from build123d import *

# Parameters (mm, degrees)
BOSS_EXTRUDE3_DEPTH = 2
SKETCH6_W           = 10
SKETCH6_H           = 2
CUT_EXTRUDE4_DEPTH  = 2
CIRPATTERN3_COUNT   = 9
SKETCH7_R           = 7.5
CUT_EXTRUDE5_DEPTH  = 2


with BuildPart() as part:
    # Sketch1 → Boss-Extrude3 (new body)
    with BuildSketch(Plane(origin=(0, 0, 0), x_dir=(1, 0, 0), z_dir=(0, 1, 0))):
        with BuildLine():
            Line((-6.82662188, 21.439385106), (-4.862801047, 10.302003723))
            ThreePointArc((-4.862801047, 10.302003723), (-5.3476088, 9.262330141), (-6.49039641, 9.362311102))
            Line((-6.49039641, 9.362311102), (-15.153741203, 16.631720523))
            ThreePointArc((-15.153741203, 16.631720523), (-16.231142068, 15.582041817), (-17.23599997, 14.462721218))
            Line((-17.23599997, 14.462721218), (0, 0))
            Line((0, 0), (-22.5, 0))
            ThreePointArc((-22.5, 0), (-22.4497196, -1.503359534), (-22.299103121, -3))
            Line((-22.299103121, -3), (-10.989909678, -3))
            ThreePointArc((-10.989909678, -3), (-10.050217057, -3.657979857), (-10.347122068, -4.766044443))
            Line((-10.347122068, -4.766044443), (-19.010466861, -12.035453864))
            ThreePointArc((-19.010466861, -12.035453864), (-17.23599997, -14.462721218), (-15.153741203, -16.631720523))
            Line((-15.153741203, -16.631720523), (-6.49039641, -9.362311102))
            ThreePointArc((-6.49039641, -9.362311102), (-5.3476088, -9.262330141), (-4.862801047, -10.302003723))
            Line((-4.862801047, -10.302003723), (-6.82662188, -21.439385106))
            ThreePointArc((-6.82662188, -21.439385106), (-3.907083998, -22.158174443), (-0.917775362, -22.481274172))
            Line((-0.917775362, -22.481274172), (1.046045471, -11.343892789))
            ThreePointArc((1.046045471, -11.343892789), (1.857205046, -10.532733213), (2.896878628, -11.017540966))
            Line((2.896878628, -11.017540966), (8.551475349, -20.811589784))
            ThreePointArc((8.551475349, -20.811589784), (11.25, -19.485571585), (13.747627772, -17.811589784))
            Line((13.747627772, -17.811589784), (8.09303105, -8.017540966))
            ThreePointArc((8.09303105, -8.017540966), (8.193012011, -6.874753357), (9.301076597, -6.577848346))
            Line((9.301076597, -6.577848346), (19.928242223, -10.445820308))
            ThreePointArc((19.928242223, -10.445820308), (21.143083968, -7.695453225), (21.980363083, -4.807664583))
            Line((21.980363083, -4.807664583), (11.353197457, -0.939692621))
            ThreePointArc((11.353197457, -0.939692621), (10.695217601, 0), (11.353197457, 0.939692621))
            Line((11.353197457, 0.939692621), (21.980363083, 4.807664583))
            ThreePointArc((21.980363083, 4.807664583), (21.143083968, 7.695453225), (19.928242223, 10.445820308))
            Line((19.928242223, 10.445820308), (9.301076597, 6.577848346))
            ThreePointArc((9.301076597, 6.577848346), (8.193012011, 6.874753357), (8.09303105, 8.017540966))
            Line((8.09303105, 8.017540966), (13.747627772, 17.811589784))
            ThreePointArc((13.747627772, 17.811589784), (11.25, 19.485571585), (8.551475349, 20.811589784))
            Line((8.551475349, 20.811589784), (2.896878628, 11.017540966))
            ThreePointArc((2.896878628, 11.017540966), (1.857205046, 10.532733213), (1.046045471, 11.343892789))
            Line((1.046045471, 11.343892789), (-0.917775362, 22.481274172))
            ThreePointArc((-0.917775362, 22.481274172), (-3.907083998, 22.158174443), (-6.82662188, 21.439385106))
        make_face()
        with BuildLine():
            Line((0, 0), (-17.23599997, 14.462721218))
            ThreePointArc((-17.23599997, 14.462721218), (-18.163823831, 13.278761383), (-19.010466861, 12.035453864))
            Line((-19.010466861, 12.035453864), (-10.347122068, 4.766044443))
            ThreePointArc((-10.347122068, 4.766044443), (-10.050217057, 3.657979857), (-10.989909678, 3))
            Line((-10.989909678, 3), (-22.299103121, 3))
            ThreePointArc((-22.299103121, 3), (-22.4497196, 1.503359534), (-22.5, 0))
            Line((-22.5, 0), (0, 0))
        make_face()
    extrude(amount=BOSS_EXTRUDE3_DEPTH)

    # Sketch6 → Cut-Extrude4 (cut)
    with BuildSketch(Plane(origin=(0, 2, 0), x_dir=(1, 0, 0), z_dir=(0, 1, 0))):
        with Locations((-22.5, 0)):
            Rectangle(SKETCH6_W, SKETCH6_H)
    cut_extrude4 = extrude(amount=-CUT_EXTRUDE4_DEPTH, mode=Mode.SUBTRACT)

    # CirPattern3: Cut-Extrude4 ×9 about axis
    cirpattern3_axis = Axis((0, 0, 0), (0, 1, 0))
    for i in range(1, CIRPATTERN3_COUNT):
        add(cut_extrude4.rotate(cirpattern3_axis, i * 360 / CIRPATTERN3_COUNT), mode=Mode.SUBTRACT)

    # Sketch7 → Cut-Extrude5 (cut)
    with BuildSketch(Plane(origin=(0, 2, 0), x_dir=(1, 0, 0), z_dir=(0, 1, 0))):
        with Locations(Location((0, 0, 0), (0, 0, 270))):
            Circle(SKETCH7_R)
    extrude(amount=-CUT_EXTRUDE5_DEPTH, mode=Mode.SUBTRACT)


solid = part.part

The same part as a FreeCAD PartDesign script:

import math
import FreeCAD as App
import Part
import Sketcher
from FreeCAD import Vector
Q = App.Units.Quantity


def add_polygon(sketch, points):
    """Adds a closed chain of lines whose ends are joined by coincident constraints."""
    first, n = sketch.GeometryCount, len(points)
    for a, b in zip(points, points[1:] + points[:1]):
        sketch.addGeometry(Part.LineSegment(App.Vector(*a, 0), App.Vector(*b, 0)), False)
    for i in range(n):
        sketch.addConstraint(Sketcher.Constraint("Coincident", first + i, 2, first + (i + 1) % n, 1))

doc = App.newDocument("Part")
body = doc.addObject("PartDesign::Body", "Body")

# Sketch on XZ plane
sketch1 = doc.addObject("Sketcher::SketchObject", "Sketch")
body.addObject(sketch1)
sketch1.AttachmentSupport = (doc.XZ_Plane, [""])
sketch1.MapMode = "FlatFace"
sketch1.addGeometry([
    Part.LineSegment(Vector(-6.826622, -21.439385, 0), Vector(-4.862801, -10.302004, 0)),  # 0
    Part.ArcOfCircle(Part.Circle(Vector(-5.847609, -10.128356, 0), Vector(0, 0, 1), 1), math.radians(-10), math.radians(130)),  # 1
    Part.LineSegment(Vector(-6.490396, -9.362311, 0), Vector(-15.153741, -16.631721, 0)),  # 2
    Part.ArcOfCircle(Part.Circle(Vector(0, 0, 0), Vector(0, 0, 1), 22.5), math.radians(-140), math.radians(-132.337744)),  # 3
    Part.ArcOfCircle(Part.Circle(Vector(0, 0, 0), Vector(0, 0, 1), 22.5), math.radians(-147.662256), math.radians(-140)),  # 4
    Part.LineSegment(Vector(-19.010467, -12.035454, 0), Vector(-10.347122, -4.766044, 0)),  # 5
    Part.ArcOfCircle(Part.Circle(Vector(-10.98991, -4, 0), Vector(0, 0, 1), 1), math.radians(-50), math.radians(90)),  # 6
    Part.LineSegment(Vector(-10.98991, -3, 0), Vector(-22.299103, -3, 0)),  # 7
    Part.ArcOfCircle(Part.Circle(Vector(0, 0, 0), Vector(0, 0, 1), 22.5), math.radians(180), math.radians(187.662256)),  # 8
    Part.ArcOfCircle(Part.Circle(Vector(0, 0, 0), Vector(0, 0, 1), 22.5), math.radians(172.337744), math.radians(180)),  # 9
    Part.LineSegment(Vector(-22.299103, 3, 0), Vector(-10.98991, 3, 0)),  # 10
    Part.ArcOfCircle(Part.Circle(Vector(-10.98991, 4, 0), Vector(0, 0, 1), 1), math.radians(-90), math.radians(50)),  # 11
    Part.LineSegment(Vector(-10.347122, 4.766044, 0), Vector(-19.010467, 12.035454, 0)),  # 12
    Part.ArcOfCircle(Part.Circle(Vector(0, 0, 0), Vector(0, 0, 1), 22.5), math.radians(132.337744), math.radians(147.662256)),  # 13
    Part.LineSegment(Vector(-15.153741, 16.631721, 0), Vector(-6.490396, 9.362311, 0)),  # 14
    Part.ArcOfCircle(Part.Circle(Vector(-5.847609, 10.128356, 0), Vector(0, 0, 1), 1), math.radians(-130), math.radians(10)),  # 15
    Part.LineSegment(Vector(-4.862801, 10.302004, 0), Vector(-6.826622, 21.439385, 0)),  # 16
    Part.ArcOfCircle(Part.Circle(Vector(0, 0, 0), Vector(0, 0, 1), 22.5), math.radians(92.337744), math.radians(107.662256)),  # 17
    Part.LineSegment(Vector(-0.917775, 22.481274, 0), Vector(1.046045, 11.343893, 0)),  # 18
    Part.ArcOfCircle(Part.Circle(Vector(2.030853, 11.517541, 0), Vector(0, 0, 1), 1), math.radians(-170), math.radians(-30)),  # 19
    Part.LineSegment(Vector(2.896879, 11.017541, 0), Vector(8.551475, 20.81159, 0)),  # 20
    Part.ArcOfCircle(Part.Circle(Vector(0, 0, 0), Vector(0, 0, 1), 22.5), math.radians(52.337744), math.radians(67.662256)),  # 21
    Part.LineSegment(Vector(13.747628, 17.81159, 0), Vector(8.093031, 8.017541, 0)),  # 22
    Part.ArcOfCircle(Part.Circle(Vector(8.959056, 7.517541, 0), Vector(0, 0, 1), 1), math.radians(150), math.radians(290)),  # 23
    Part.LineSegment(Vector(9.301077, 6.577848, 0), Vector(19.928242, 10.44582, 0)),  # 24
    Part.ArcOfCircle(Part.Circle(Vector(0, 0, 0), Vector(0, 0, 1), 22.5), math.radians(12.337744), math.radians(27.662256)),  # 25
    Part.LineSegment(Vector(21.980363, 4.807665, 0), Vector(11.353197, 0.939693, 0)),  # 26
    Part.ArcOfCircle(Part.Circle(Vector(11.695218, 0, 0), Vector(0, 0, 1), 1), math.radians(110), math.radians(250)),  # 27
    Part.LineSegment(Vector(11.353197, -0.939693, 0), Vector(21.980363, -4.807665, 0)),  # 28
    Part.ArcOfCircle(Part.Circle(Vector(0, 0, 0), Vector(0, 0, 1), 22.5), math.radians(-27.662256), math.radians(-12.337744)),  # 29
    Part.LineSegment(Vector(19.928242, -10.44582, 0), Vector(9.301077, -6.577848, 0)),  # 30
    Part.ArcOfCircle(Part.Circle(Vector(8.959056, -7.517541, 0), Vector(0, 0, 1), 1), math.radians(70), math.radians(210)),  # 31
    Part.LineSegment(Vector(8.093031, -8.017541, 0), Vector(13.747628, -17.81159, 0)),  # 32
    Part.ArcOfCircle(Part.Circle(Vector(0, 0, 0), Vector(0, 0, 1), 22.5), math.radians(-67.662256), math.radians(-52.337744)),  # 33
    Part.LineSegment(Vector(8.551475, -20.81159, 0), Vector(2.896879, -11.017541, 0)),  # 34
    Part.ArcOfCircle(Part.Circle(Vector(2.030853, -11.517541, 0), Vector(0, 0, 1), 1), math.radians(30), math.radians(170)),  # 35
    Part.LineSegment(Vector(1.046045, -11.343893, 0), Vector(-0.917775, -22.481274, 0)),  # 36
    Part.ArcOfCircle(Part.Circle(Vector(0, 0, 0), Vector(0, 0, 1), 22.5), math.radians(-107.662256), math.radians(-92.337744)),  # 37
], False)
sketch1.addConstraint([
    Sketcher.Constraint("Tangent", 0, 2, 1, 1),
    Sketcher.Constraint("Tangent", 1, 2, 2, 1),
    Sketcher.Constraint("Coincident", 2, 2, 3, 2),
    Sketcher.Constraint("Tangent", 3, 1, 4, 2),
    Sketcher.Constraint("Coincident", 4, 1, 5, 1),
    Sketcher.Constraint("Tangent", 5, 2, 6, 1),
    Sketcher.Constraint("Tangent", 6, 2, 7, 1),
    Sketcher.Constraint("Coincident", 7, 2, 8, 2),
    Sketcher.Constraint("Tangent", 8, 1, 9, 2),
    Sketcher.Constraint("Coincident", 9, 1, 10, 1),
    Sketcher.Constraint("Tangent", 10, 2, 11, 1),
    Sketcher.Constraint("Tangent", 11, 2, 12, 1),
    Sketcher.Constraint("Coincident", 12, 2, 13, 2),
    Sketcher.Constraint("Coincident", 13, 1, 14, 1),
    Sketcher.Constraint("Tangent", 14, 2, 15, 1),
    Sketcher.Constraint("Tangent", 15, 2, 16, 1),
    Sketcher.Constraint("Coincident", 16, 2, 17, 2),
    Sketcher.Constraint("Coincident", 17, 1, 18, 1),
    Sketcher.Constraint("Tangent", 18, 2, 19, 1),
    Sketcher.Constraint("Tangent", 19, 2, 20, 1),
    Sketcher.Constraint("Coincident", 20, 2, 21, 2),
    Sketcher.Constraint("Coincident", 21, 1, 22, 1),
    Sketcher.Constraint("Tangent", 22, 2, 23, 1),
    Sketcher.Constraint("Tangent", 23, 2, 24, 1),
    Sketcher.Constraint("Coincident", 24, 2, 25, 2),
    Sketcher.Constraint("Coincident", 25, 1, 26, 1),
    Sketcher.Constraint("Tangent", 26, 2, 27, 1),
    Sketcher.Constraint("Tangent", 27, 2, 28, 1),
    Sketcher.Constraint("Coincident", 28, 2, 29, 2),
    Sketcher.Constraint("Coincident", 29, 1, 30, 1),
    Sketcher.Constraint("Tangent", 30, 2, 31, 1),
    Sketcher.Constraint("Tangent", 31, 2, 32, 1),
    Sketcher.Constraint("Coincident", 32, 2, 33, 2),
    Sketcher.Constraint("Coincident", 33, 1, 34, 1),
    Sketcher.Constraint("Tangent", 34, 2, 35, 1),
    Sketcher.Constraint("Tangent", 35, 2, 36, 1),
    Sketcher.Constraint("Coincident", 36, 2, 37, 2),
    Sketcher.Constraint("Coincident", 37, 1, 0, 1),
    Sketcher.Constraint("Horizontal", 7),
    Sketcher.Constraint("Horizontal", 10),
    Sketcher.Constraint("Coincident", 3, 3, -1, 1),
    Sketcher.Constraint("Coincident", 8, 3, -1, 1),
    Sketcher.Constraint("Coincident", 13, 3, -1, 1),
    Sketcher.Constraint("Coincident", 17, 3, -1, 1),
    Sketcher.Constraint("Coincident", 21, 3, -1, 1),
    Sketcher.Constraint("Coincident", 25, 3, -1, 1),
    Sketcher.Constraint("Coincident", 29, 3, -1, 1),
    Sketcher.Constraint("Coincident", 33, 3, -1, 1),
    Sketcher.Constraint("Coincident", 37, 3, -1, 1),
    Sketcher.Constraint("Equal", 3, 4),
    Sketcher.Constraint("Equal", 1, 6),
    Sketcher.Constraint("Equal", 4, 8),
    Sketcher.Constraint("Equal", 8, 9),
    Sketcher.Constraint("Equal", 6, 11),
    Sketcher.Constraint("Equal", 9, 13),
    Sketcher.Constraint("Equal", 11, 15),
    Sketcher.Constraint("Equal", 13, 17),
    Sketcher.Constraint("Equal", 15, 19),
    Sketcher.Constraint("Equal", 17, 21),
    Sketcher.Constraint("Equal", 19, 23),
    Sketcher.Constraint("Equal", 21, 25),
    Sketcher.Constraint("Equal", 23, 27),
    Sketcher.Constraint("Equal", 25, 29),
    Sketcher.Constraint("Equal", 27, 31),
    Sketcher.Constraint("Equal", 29, 33),
    Sketcher.Constraint("Equal", 31, 35),
    Sketcher.Constraint("Equal", 33, 37),
    Sketcher.Constraint("Symmetric", 6, 3, 11, 3, -1),
    Sketcher.Constraint("Symmetric", 1, 3, 15, 3, -1),
    Sketcher.Constraint("Symmetric", 23, 3, 31, 3, -1),
    Sketcher.Constraint("Symmetric", 19, 3, 35, 3, -1),
    Sketcher.Constraint("Symmetric", 26, 2, 27, 2, -1),
    Sketcher.Constraint("PointOnObject", 8, 1, -1),
    Sketcher.Constraint("Parallel", 2, 5),
    Sketcher.Constraint("Parallel", 12, 14),
    Sketcher.Constraint("Parallel", 16, 18),
    Sketcher.Constraint("Parallel", 20, 22),
    Sketcher.Constraint("Parallel", 24, 26),
    Sketcher.Constraint("Parallel", 28, 30),
    Sketcher.Constraint("Parallel", 32, 34),
    Sketcher.Constraint("Parallel", 0, 36),
    Sketcher.Constraint("Vertical", 5, 2, 11, 2),
    Sketcher.Constraint("Vertical", 0, 2, 15, 2),
    Sketcher.Constraint("Vertical", 22, 2, 31, 2),
    Sketcher.Constraint("Equal", 0, 2),
    Sketcher.Constraint("Equal", 2, 5),
    Sketcher.Constraint("Equal", 16, 18),
    Sketcher.Constraint("Equal", 18, 20),
    Sketcher.Constraint("Equal", 20, 22),
    Sketcher.Constraint("Equal", 22, 24),
    Sketcher.Constraint("Equal", 24, 26),
    Sketcher.Constraint("Radius", 1, 1.0),
    Sketcher.Constraint("Radius", 3, 22.5),
    Sketcher.Constraint("Angle", 0, Q("80 deg")),
    Sketcher.Constraint("Angle", 2, Q("-140 deg")),
    Sketcher.Constraint("Angle", 20, Q("60 deg")),
    Sketcher.Constraint("Angle", 24, Q("20 deg")),
    Sketcher.Constraint("DistanceY", 6, 3, -1, 1, 4.0),
    Sketcher.Constraint("DistanceY", 23, 3, 19, 3, 4.0),
    Sketcher.Constraint("DistanceX", 3, 1, -1, 1, 17.236),
])
pad1 = doc.addObject("PartDesign::Pad", "Pad")
body.addObject(pad1)
pad1.Profile = sketch1
pad1.Length = 2
pad1.Reversed = True

# Sketch on XZ plane
sketch2 = doc.addObject("Sketcher::SketchObject", "Sketch001")
body.addObject(sketch2)
sketch2.AttachmentSupport = (doc.XZ_Plane, [""])
sketch2.MapMode = "FlatFace"
sketch2.AttachmentOffset = App.Placement(Vector(0, 0, -2), App.Rotation())
add_polygon(sketch2, [(-27.5, -1), (-27.5, 1), (-17.5, 1), (-17.5, -1)])  # lines 0-3
sketch2.addConstraint([
    Sketcher.Constraint("Vertical", 0),
    Sketcher.Constraint("Horizontal", 1),
    Sketcher.Constraint("Vertical", 2),
    Sketcher.Constraint("Horizontal", 3),
    Sketcher.Constraint("DistanceX", 1, 1, 1, 2, 10.0),
    Sketcher.Constraint("DistanceY", 0, 1, 0, 2, 2.0),
    Sketcher.Constraint("DistanceY", -1, 1, 0, 2, 1.0),
    Sketcher.Constraint("DistanceX", 0, 2, -1, 1, 27.5),
])
pocket1 = doc.addObject("PartDesign::Pocket", "Pocket")
body.addObject(pocket1)
pocket1.Profile = sketch2
pocket1.Length = 2
pocket1.Reversed = True
doc.recompute()

polarpattern = doc.addObject("PartDesign::PolarPattern", "PolarPattern")
body.addObject(polarpattern)
polarpattern.Originals = [pocket1]
polarpattern.Axis = (doc.Y_Axis, [""])
polarpattern.Angle = 360
polarpattern.Occurrences = 9
body.Tip = polarpattern

# Sketch on XZ plane
sketch3 = doc.addObject("Sketcher::SketchObject", "Sketch002")
body.addObject(sketch3)
sketch3.AttachmentSupport = (doc.XZ_Plane, [""])
sketch3.MapMode = "FlatFace"
sketch3.AttachmentOffset = App.Placement(Vector(0, 0, -2), App.Rotation())
sketch3.addGeometry(Part.Circle(Vector(0, 0, 0), Vector(0, 0, 1), 7.5), False)
sketch3.addConstraint([
    Sketcher.Constraint("Coincident", 0, 3, -1, 1),
    Sketcher.Constraint("Diameter", 0, 15.0),
])
pocket2 = doc.addObject("PartDesign::Pocket", "Pocket001")
body.addObject(pocket2)
pocket2.Profile = sketch3
pocket2.Length = 2
pocket2.Reversed = True

doc.recompute()
